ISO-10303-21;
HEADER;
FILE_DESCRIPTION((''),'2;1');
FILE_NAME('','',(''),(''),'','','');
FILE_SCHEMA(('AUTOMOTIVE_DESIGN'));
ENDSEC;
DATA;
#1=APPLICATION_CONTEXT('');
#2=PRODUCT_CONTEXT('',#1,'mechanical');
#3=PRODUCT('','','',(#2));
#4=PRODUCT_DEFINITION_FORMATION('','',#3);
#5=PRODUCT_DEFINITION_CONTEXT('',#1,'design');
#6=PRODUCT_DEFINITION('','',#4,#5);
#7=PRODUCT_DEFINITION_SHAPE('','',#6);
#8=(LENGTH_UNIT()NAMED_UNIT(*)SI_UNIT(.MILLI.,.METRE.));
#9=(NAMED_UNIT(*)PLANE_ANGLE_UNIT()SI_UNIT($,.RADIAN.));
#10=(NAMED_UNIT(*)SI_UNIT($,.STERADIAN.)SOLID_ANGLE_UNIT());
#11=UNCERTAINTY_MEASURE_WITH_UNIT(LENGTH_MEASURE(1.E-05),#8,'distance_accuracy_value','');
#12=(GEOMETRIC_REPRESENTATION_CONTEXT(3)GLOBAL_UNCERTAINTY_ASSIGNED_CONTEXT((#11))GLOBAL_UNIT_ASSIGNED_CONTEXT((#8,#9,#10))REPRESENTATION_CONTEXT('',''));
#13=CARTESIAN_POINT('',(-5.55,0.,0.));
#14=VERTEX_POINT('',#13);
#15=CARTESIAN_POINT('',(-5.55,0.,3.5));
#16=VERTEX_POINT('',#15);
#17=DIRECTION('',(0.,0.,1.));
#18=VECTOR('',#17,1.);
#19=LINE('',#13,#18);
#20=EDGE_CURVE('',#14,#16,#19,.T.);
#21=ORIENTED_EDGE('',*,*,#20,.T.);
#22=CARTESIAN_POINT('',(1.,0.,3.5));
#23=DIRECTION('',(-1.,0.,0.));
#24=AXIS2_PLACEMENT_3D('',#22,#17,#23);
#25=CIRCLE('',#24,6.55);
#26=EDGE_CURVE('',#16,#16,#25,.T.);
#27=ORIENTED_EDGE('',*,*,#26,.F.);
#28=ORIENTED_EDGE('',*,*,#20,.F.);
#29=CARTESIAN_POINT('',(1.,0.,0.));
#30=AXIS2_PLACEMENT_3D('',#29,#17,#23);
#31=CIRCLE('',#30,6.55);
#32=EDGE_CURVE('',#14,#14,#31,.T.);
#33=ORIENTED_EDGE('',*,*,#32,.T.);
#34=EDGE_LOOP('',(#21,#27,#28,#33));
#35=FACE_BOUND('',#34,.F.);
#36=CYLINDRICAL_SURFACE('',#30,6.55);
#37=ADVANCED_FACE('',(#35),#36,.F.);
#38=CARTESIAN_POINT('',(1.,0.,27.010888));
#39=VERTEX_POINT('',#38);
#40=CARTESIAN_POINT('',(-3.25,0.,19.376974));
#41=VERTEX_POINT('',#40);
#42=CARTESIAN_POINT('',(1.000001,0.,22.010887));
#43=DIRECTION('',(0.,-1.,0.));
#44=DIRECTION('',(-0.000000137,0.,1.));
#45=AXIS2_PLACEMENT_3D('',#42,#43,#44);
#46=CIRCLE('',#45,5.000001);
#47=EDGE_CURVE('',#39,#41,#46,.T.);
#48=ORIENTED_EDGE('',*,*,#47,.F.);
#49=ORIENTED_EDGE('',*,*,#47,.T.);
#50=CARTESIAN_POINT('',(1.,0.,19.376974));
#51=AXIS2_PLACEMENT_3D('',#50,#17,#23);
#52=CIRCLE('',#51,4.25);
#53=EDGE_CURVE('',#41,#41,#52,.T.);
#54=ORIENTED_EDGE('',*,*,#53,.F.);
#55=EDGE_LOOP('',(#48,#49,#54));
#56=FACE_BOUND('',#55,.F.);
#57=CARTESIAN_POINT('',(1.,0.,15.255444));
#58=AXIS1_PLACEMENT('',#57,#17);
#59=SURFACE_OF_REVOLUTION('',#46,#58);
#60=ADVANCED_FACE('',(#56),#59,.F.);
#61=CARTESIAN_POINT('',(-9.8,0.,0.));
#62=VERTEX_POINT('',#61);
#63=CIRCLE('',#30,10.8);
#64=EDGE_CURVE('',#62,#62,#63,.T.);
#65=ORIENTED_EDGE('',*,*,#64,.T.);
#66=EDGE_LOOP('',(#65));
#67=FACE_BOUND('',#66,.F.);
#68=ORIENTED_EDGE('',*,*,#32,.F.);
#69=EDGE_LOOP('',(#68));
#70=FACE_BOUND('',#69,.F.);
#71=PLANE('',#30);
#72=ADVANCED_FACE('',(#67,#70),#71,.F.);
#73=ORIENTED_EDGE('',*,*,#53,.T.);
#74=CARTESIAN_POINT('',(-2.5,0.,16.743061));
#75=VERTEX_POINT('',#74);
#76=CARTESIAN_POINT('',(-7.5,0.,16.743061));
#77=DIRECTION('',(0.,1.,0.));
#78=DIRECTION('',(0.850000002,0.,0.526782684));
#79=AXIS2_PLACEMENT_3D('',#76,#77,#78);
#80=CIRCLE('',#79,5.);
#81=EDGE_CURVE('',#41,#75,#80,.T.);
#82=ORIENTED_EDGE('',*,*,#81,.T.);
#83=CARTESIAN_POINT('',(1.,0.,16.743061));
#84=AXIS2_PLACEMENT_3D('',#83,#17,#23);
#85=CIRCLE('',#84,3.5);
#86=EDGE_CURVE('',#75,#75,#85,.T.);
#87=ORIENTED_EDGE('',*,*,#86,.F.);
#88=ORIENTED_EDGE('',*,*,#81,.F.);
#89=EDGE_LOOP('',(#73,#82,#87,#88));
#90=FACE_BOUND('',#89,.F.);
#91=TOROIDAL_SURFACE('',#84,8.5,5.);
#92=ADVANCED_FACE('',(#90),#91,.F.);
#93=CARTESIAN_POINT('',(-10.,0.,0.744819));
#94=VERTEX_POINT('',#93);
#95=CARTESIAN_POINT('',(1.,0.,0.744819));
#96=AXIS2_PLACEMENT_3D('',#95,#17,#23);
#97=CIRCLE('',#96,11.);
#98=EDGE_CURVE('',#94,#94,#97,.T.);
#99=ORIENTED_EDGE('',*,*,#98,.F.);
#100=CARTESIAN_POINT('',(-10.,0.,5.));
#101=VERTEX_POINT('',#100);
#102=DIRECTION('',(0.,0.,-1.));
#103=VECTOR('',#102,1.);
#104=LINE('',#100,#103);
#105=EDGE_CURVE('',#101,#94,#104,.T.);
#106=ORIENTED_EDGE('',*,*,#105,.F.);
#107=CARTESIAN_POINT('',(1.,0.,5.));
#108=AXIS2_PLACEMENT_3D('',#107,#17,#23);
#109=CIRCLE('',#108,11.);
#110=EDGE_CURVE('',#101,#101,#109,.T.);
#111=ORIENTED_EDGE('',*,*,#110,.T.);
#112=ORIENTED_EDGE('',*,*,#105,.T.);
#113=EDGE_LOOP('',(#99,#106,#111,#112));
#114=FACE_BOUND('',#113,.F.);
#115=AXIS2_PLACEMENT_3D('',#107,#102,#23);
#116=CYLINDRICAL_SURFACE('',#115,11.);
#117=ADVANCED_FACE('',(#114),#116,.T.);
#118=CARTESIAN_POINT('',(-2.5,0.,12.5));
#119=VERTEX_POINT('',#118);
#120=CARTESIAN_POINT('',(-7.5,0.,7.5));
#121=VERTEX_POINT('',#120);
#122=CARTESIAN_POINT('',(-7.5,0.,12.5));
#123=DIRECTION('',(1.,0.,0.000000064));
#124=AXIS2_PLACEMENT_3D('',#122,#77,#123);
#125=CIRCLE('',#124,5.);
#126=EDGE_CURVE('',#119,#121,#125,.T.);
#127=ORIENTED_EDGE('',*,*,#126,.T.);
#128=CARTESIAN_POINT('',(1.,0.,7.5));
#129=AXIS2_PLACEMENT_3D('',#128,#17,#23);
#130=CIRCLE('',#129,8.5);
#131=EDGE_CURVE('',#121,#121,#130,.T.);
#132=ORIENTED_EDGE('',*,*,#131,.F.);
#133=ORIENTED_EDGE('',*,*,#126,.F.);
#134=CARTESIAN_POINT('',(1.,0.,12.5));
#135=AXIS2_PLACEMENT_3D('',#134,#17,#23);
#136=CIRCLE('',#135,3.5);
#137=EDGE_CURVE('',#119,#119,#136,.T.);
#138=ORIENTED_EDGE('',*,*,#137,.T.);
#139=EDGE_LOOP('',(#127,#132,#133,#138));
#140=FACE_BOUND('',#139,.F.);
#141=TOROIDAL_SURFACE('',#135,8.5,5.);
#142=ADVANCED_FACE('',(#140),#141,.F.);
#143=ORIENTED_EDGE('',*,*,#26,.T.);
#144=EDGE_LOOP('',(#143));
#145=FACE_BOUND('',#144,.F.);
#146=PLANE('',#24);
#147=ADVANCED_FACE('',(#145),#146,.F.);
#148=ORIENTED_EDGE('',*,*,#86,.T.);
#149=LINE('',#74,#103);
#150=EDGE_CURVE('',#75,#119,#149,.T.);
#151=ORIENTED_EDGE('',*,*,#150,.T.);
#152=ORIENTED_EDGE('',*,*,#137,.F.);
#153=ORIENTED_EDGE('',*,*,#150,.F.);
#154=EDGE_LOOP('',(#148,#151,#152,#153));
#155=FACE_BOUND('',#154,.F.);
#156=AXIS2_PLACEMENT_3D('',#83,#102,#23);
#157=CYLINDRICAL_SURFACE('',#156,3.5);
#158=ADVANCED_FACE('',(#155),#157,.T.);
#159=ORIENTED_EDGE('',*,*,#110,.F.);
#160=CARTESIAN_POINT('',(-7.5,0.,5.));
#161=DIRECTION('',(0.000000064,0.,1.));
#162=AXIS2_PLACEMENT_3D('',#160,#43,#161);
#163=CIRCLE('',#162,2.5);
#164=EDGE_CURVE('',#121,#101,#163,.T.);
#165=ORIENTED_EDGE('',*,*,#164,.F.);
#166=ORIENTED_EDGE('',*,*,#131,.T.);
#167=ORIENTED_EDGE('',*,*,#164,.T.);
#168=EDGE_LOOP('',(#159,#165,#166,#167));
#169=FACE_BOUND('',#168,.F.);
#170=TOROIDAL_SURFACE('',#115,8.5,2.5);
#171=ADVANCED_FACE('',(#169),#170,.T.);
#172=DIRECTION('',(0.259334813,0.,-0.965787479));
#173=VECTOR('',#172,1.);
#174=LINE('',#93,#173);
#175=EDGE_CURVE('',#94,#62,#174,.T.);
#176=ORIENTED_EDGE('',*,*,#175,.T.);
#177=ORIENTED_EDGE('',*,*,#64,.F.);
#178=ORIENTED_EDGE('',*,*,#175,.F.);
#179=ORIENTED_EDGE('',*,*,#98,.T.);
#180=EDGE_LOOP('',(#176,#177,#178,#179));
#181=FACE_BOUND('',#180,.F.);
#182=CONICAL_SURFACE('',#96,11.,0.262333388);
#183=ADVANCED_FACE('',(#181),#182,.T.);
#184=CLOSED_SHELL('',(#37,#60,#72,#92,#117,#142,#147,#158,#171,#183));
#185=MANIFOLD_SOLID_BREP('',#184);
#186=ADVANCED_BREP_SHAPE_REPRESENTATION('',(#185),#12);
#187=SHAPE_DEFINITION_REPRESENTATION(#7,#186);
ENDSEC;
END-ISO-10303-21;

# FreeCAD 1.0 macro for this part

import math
import FreeCAD as App
import Part
import Sketcher
Q = App.Units.Quantity

doc = App.newDocument("Part")
params = doc.addObject("Spreadsheet::Sheet", "Params")
for row, (alias, value) in enumerate([
    ("sketch1_radius", "5.000001 mm"),
    ("sketch1_radius2", "2.5 mm"),
    ("sketch1_height", "3.5 mm"),
    ("sketch1_width", "6.55 mm"),
    ("sketch1_width2", "4.25 mm"),
    ("revolution_angle", "360 deg"),
], start=1):
    params.set(f"A{row}", alias)
    params.set(f"B{row}", "=" + value)
    params.setAlias(f"B{row}", alias)

body = doc.addObject("PartDesign::Body", "Body")

sketch1 = body.newObject("Sketcher::SketchObject", "Sketch")
sketch1.AttachmentSupport = (doc.getObject("XZ_Plane"), [""])
sketch1.MapMode = "FlatFace"
sketch1.addGeometry(Part.LineSegment(App.Vector(-5.55, 3.5, 0), App.Vector(1, 3.5, 0)), False)
sketch1.addGeometry(Part.LineSegment(App.Vector(1, 3.5, 0), App.Vector(1, 27.010888, 0)), False)
sketch1.addGeometry(Part.ArcOfCircle(Part.Circle(App.Vector(1.000001, 22.010887, 0), App.Vector(0, 0, 1), 5.000001), math.radians(90.000008), math.radians(211.788326)), False)
sketch1.addGeometry(Part.ArcOfCircle(Part.Circle(App.Vector(-7.5, 16.743061, 0), App.Vector(0, 0, 1), 5), math.radians(0.000005), math.radians(31.78833)), False)
sketch1.addGeometry(Part.LineSegment(App.Vector(-2.5, 16.743061, 0), App.Vector(-2.5, 12.5, 0)), False)
sketch1.addGeometry(Part.ArcOfCircle(Part.Circle(App.Vector(-7.5, 12.5, 0), App.Vector(0, 0, 1), 5), math.radians(-90.000004), math.radians(0.000004)), False)
sketch1.addGeometry(Part.ArcOfCircle(Part.Circle(App.Vector(-7.5, 5, 0), App.Vector(0, 0, 1), 2.5), math.radians(89.999996), math.radians(180.000004)), False)
sketch1.addGeometry(Part.LineSegment(App.Vector(-10, 5, 0), App.Vector(-10, 0.744819, 0)), False)
sketch1.addGeometry(Part.LineSegment(App.Vector(-10, 0.744819, 0), App.Vector(-9.8, 0, 0)), False)
sketch1.addGeometry(Part.LineSegment(App.Vector(-9.8, 0, 0), App.Vector(-5.55, 0, 0)), False)
sketch1.addGeometry(Part.LineSegment(App.Vector(-5.55, 0, 0), App.Vector(-5.55, 3.5, 0)), False)
sketch1.addGeometry(Part.LineSegment(App.Vector(1, 0, 0), App.Vector(1, 27.010888, 0)), True)
sketch1.addConstraint(Sketcher.Constraint("Coincident", 0, 2, 1, 1))
sketch1.addConstraint(Sketcher.Constraint("Coincident", 1, 2, 2, 1))
sketch1.addConstraint(Sketcher.Constraint("Tangent", 2, 2, 3, 2))
sketch1.addConstraint(Sketcher.Constraint("Tangent", 3, 1, 4, 1))
sketch1.addConstraint(Sketcher.Constraint("Tangent", 4, 2, 5, 2))
sketch1.addConstraint(Sketcher.Constraint("Tangent", 5, 1, 6, 1))
sketch1.addConstraint(Sketcher.Constraint("Tangent", 6, 2, 7, 1))
sketch1.addConstraint(Sketcher.Constraint("Coincident", 7, 2, 8, 1))
sketch1.addConstraint(Sketcher.Constraint("Coincident", 8, 2, 9, 1))
sketch1.addConstraint(Sketcher.Constraint("Coincident", 9, 2, 10, 1))
sketch1.addConstraint(Sketcher.Constraint("Coincident", 10, 2, 0, 1))
sketch1.addConstraint(Sketcher.Constraint("Horizontal", 0))
sketch1.addConstraint(Sketcher.Constraint("Vertical", 1))
sketch1.addConstraint(Sketcher.Constraint("Vertical", 4))
sketch1.addConstraint(Sketcher.Constraint("Vertical", 7))
sketch1.addConstraint(Sketcher.Constraint("Horizontal", 9))
sketch1.addConstraint(Sketcher.Constraint("Vertical", 10))
sketch1.addConstraint(Sketcher.Constraint("Vertical", 11))
sketch1.addConstraint(Sketcher.Constraint("Coincident", 11, 2, 1, 2))
sketch1.addConstraint(Sketcher.Constraint("Equal", 2, 3))
sketch1.addConstraint(Sketcher.Constraint("Equal", 3, 5))
sketch1.addConstraint(Sketcher.Constraint("PointOnObject", 8, 2, -1))
sketch1.addConstraint(Sketcher.Constraint("PointOnObject", 11, 1, -1))
sketch1.addConstraint(Sketcher.Constraint("Vertical", 5, 3, 6, 3))
sketch1.addConstraint(Sketcher.Constraint("Vertical", 2, 3, 0, 2))
sketch1.addConstraint(Sketcher.Constraint("Radius", 2, Q("5.000001 mm")))
sketch1.addConstraint(Sketcher.Constraint("Radius", 6, Q("2.5 mm")))
sketch1.addConstraint(Sketcher.Constraint("DistanceY", 10, 1, 10, 2, Q("3.5 mm")))
sketch1.addConstraint(Sketcher.Constraint("DistanceX", -1, 1, 2, 3, Q("1.000001 mm")))
sketch1.addConstraint(Sketcher.Constraint("DistanceY", -1, 1, 6, 3, Q("5 mm")))
sketch1.addConstraint(Sketcher.Constraint("DistanceX", 6, 2, -1, 1, Q("10 mm")))
sketch1.addConstraint(Sketcher.Constraint("DistanceX", 0, 1, 0, 2, Q("6.55 mm")))
sketch1.addConstraint(Sketcher.Constraint("DistanceX", 9, 1, 9, 2, Q("4.25 mm")))
sketch1.addConstraint(Sketcher.Constraint("DistanceY", 1, 1, 1, 2, Q("23.510888 mm")))
sketch1.addConstraint(Sketcher.Constraint("DistanceY", 7, 2, 7, 1, Q("4.255181 mm")))
sketch1.setExpression("Constraints[25]", "Params.sketch1_radius")
sketch1.setExpression("Constraints[26]", "Params.sketch1_radius2")
sketch1.setExpression("Constraints[27]", "Params.sketch1_height")
sketch1.setExpression("Constraints[31]", "Params.sketch1_width")
sketch1.setExpression("Constraints[32]", "Params.sketch1_width2")
revolution = body.newObject("PartDesign::Revolution", "Revolution")
revolution.Profile = sketch1
revolution.ReferenceAxis = (sketch1, ["Axis0"])
revolution.setExpression("Angle", "Params.revolution_angle")

doc.recompute()
